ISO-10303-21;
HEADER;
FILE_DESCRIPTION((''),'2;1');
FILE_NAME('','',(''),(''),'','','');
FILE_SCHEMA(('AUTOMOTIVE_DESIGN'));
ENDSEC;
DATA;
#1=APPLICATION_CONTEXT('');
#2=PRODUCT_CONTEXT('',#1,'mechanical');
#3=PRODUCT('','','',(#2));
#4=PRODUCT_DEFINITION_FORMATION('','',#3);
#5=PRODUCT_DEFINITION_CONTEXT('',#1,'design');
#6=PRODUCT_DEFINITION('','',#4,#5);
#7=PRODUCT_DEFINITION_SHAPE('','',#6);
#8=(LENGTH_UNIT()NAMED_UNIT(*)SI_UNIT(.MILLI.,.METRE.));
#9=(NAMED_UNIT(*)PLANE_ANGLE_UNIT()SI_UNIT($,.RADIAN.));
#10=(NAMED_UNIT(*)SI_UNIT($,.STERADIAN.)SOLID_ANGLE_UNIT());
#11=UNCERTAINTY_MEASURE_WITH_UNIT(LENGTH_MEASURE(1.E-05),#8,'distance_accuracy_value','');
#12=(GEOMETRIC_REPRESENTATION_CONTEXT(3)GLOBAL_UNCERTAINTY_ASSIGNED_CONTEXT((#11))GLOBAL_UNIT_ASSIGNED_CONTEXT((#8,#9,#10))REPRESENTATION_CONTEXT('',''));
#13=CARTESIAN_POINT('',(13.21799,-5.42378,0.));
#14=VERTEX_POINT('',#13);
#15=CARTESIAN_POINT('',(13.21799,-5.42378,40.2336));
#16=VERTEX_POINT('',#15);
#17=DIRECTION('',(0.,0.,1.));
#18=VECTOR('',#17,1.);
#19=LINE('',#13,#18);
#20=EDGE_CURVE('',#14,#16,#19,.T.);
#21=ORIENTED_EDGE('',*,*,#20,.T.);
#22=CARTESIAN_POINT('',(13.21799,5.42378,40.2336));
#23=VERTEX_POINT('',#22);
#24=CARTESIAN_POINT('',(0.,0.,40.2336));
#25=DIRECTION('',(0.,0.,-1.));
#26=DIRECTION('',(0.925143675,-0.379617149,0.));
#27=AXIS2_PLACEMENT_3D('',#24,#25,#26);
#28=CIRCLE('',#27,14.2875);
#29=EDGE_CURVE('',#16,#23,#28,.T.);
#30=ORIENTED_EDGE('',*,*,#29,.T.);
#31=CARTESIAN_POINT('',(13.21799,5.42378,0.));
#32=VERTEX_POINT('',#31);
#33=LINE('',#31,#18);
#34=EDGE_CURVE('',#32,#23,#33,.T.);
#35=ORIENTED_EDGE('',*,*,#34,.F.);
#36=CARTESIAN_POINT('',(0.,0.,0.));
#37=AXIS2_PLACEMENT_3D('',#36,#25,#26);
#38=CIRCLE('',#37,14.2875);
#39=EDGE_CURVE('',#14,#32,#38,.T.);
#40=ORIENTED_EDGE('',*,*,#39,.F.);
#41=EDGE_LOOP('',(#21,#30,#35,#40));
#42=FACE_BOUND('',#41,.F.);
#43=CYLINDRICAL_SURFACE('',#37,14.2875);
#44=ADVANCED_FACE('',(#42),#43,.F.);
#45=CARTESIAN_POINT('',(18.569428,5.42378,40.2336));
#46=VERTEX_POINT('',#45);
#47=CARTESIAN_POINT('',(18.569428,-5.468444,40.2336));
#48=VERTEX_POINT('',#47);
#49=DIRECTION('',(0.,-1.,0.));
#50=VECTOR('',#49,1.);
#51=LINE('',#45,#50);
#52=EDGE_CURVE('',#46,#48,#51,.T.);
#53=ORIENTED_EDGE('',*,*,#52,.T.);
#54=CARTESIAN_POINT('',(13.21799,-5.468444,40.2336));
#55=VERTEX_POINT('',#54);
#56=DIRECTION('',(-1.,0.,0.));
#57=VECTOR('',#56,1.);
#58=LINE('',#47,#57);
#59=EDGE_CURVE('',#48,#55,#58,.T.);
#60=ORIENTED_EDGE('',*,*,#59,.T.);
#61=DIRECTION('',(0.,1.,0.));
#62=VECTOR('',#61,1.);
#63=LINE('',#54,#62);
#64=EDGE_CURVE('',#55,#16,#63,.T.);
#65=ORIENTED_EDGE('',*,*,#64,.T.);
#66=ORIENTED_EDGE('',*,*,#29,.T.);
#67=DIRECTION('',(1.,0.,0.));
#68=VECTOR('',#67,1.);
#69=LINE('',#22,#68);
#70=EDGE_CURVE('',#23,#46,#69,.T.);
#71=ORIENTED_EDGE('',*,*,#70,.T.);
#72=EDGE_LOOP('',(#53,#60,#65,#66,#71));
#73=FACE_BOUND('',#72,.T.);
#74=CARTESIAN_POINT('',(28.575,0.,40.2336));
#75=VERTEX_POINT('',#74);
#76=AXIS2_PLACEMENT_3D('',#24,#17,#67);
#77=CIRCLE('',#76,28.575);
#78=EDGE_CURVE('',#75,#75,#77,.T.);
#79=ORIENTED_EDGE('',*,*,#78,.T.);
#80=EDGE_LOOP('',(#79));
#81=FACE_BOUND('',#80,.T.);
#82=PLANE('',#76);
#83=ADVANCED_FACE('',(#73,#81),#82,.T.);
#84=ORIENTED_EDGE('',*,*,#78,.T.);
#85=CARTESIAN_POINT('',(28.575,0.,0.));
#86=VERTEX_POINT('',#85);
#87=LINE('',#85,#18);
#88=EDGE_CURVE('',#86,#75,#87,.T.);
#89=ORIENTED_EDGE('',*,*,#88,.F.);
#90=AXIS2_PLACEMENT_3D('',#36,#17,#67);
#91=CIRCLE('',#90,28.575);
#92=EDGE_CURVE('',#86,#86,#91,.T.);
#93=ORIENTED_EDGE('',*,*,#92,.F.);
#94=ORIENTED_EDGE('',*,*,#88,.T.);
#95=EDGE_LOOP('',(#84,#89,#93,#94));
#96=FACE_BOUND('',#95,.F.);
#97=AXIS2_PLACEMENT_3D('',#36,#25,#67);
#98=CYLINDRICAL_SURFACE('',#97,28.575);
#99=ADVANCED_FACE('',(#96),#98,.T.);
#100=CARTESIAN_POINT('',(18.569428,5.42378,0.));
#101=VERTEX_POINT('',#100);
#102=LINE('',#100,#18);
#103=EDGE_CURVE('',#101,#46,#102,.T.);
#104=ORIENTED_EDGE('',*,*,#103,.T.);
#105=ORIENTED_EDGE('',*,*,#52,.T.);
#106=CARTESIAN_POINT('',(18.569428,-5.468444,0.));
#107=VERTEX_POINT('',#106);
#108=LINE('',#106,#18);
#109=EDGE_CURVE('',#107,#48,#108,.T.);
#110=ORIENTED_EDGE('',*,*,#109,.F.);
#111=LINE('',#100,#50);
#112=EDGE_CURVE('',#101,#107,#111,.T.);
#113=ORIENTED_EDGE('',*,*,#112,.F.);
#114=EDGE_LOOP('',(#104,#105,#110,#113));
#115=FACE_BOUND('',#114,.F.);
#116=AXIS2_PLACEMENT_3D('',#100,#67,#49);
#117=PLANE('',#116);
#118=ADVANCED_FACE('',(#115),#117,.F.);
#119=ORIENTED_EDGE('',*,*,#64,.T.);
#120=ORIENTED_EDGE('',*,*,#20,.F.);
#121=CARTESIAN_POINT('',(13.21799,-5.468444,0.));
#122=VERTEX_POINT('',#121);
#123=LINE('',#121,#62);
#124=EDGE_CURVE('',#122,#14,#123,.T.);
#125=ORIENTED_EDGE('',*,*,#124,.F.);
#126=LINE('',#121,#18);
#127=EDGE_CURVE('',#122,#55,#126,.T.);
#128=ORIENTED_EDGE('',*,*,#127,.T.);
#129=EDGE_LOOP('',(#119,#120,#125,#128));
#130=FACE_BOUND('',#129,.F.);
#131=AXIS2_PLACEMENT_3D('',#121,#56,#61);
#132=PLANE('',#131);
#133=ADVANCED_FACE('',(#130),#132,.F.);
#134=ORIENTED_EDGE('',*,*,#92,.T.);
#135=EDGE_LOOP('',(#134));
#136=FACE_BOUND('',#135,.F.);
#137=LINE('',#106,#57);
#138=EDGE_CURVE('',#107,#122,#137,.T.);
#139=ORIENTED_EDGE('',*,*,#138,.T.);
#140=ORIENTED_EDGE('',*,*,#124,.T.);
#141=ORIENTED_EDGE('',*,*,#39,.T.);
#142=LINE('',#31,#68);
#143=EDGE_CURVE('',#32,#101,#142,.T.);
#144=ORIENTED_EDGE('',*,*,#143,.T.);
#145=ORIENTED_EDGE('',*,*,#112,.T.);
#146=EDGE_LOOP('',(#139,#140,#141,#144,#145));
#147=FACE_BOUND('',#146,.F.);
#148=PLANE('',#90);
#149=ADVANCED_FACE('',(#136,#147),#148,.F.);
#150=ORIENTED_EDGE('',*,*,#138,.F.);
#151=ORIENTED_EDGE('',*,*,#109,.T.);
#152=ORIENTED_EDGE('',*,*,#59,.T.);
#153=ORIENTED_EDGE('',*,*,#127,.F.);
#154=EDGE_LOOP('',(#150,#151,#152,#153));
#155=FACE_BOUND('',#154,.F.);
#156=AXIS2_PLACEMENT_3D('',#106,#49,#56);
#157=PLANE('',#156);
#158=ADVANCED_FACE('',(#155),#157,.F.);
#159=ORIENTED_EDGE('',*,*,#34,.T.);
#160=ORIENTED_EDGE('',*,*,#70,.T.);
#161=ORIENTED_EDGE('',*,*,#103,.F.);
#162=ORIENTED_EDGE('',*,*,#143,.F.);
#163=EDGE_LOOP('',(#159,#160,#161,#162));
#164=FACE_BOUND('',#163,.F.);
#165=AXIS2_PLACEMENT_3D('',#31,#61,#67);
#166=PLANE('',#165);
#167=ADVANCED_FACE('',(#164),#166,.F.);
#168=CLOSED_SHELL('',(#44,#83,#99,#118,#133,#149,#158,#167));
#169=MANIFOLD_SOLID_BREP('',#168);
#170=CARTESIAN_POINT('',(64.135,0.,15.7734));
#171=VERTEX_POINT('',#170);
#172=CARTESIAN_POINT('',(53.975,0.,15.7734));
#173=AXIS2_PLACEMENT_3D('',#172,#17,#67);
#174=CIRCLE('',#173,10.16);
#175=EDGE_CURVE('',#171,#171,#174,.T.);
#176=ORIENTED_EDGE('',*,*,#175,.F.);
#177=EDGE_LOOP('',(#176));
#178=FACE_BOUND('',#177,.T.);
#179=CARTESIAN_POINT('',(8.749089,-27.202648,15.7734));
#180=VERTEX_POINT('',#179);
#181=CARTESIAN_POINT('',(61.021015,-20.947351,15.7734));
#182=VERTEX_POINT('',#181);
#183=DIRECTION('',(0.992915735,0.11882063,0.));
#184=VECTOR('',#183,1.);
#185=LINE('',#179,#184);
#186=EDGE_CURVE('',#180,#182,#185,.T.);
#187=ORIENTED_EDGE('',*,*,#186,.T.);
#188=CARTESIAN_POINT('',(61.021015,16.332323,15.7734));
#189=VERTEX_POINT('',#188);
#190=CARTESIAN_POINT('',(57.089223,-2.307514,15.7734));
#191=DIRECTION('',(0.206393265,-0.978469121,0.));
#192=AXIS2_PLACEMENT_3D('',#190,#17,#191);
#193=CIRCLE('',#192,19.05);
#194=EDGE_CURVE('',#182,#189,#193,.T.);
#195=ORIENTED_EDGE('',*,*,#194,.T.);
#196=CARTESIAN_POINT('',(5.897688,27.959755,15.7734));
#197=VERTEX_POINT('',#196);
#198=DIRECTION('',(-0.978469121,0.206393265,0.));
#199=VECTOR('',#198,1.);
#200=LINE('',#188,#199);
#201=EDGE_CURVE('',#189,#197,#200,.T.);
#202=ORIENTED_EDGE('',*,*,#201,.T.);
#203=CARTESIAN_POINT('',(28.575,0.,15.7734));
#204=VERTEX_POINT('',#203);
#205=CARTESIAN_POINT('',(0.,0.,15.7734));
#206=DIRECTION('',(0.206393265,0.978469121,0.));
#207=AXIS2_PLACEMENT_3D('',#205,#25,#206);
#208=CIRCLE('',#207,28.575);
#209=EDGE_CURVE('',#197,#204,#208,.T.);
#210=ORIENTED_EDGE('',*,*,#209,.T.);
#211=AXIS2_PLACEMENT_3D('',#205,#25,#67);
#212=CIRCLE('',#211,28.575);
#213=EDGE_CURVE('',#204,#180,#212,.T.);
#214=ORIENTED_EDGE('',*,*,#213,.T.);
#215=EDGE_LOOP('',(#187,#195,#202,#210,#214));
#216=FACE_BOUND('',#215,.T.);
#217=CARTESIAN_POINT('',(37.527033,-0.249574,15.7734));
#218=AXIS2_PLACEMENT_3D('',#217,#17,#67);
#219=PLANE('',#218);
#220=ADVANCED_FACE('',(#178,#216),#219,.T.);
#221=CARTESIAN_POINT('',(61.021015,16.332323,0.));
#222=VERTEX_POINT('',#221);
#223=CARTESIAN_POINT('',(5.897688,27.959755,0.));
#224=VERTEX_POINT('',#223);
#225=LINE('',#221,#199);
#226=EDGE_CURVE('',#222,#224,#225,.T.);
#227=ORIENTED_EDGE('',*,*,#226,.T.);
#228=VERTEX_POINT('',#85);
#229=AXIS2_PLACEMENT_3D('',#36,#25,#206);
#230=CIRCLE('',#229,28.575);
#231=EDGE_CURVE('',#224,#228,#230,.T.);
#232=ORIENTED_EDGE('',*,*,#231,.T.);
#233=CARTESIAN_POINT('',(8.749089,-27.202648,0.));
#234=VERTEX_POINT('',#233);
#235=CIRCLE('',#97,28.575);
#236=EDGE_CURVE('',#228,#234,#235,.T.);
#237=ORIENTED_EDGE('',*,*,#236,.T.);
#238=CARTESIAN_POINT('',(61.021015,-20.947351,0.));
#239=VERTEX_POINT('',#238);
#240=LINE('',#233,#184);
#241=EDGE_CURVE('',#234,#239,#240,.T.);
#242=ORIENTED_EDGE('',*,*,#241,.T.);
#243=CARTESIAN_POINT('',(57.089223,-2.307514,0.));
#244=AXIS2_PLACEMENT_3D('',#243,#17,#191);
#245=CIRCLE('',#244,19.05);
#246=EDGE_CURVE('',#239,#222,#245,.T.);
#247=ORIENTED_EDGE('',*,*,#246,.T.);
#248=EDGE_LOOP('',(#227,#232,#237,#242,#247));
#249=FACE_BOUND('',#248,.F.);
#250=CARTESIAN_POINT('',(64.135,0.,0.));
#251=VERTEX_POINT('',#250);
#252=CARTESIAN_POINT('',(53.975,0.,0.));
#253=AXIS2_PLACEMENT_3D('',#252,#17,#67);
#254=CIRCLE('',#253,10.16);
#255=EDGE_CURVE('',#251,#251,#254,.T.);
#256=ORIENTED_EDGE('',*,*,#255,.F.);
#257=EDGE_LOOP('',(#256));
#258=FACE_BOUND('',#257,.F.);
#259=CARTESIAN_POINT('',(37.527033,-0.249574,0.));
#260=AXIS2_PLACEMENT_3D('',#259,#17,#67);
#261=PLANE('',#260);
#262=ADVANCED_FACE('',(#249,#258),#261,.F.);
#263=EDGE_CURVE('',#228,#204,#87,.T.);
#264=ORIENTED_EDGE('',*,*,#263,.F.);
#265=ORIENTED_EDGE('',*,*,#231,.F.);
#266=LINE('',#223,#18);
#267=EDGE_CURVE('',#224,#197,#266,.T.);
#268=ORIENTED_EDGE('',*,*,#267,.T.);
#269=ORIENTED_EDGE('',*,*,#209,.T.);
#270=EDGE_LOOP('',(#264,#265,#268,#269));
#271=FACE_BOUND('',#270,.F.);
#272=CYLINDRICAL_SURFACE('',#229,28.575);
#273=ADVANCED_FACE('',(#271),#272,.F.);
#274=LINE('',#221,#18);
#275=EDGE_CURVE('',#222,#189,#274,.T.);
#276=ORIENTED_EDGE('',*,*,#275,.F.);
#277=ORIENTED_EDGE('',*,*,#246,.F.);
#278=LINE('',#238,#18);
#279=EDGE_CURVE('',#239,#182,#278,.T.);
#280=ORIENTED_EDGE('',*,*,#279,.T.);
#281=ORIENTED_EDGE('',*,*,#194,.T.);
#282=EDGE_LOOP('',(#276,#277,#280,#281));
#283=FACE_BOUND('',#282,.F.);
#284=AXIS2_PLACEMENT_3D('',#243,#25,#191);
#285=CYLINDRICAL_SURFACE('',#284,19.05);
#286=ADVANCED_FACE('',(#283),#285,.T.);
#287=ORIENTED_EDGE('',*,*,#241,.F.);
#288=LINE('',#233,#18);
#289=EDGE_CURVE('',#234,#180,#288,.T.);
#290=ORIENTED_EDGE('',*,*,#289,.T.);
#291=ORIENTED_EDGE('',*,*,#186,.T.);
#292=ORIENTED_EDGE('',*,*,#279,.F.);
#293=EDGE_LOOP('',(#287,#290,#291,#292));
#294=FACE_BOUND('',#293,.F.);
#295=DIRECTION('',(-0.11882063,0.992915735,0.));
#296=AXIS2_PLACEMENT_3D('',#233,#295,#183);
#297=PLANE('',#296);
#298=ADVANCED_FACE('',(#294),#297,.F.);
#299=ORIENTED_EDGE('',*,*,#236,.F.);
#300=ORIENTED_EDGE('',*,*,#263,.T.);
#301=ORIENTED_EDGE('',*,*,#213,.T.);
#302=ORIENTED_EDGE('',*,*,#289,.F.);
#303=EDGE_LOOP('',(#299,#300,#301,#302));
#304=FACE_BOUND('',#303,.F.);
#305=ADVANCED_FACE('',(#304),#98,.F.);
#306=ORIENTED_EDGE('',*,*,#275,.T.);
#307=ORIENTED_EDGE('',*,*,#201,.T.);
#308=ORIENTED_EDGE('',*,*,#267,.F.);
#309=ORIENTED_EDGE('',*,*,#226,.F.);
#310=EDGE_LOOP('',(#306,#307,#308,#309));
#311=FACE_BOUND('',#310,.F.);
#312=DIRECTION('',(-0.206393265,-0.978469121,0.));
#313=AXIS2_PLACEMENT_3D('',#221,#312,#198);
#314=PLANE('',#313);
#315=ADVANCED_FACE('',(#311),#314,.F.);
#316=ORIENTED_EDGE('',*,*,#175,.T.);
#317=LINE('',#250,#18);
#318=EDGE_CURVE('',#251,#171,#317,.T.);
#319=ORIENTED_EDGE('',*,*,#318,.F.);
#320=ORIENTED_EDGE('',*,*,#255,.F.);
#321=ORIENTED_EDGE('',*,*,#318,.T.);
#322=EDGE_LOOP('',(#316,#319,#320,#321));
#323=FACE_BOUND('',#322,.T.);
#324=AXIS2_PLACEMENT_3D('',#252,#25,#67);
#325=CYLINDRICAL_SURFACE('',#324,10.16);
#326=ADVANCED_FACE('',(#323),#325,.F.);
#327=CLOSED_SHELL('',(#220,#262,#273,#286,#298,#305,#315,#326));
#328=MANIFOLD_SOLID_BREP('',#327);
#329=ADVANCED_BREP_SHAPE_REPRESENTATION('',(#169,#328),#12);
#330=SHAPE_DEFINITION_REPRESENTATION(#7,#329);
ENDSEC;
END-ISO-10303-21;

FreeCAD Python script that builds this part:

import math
import FreeCAD as App
import Part
import Sketcher

V = App.Vector
Q = App.Units.Quantity

doc = App.newDocument("Part")
body = doc.addObject("PartDesign::Body", "Body")

# Sketch on XY plane
sketch1 = doc.addObject("Sketcher::SketchObject", "Sketch")
body.addObject(sketch1)
sketch1.AttachmentSupport = (doc.XY_Plane, [""])
sketch1.MapMode = "FlatFace"
sketch1.addGeometry(Part.ArcOfCircle(Part.Circle(V(0, 0, 0), V(0, 0, 1), 29), math.radians(0), math.radians(78)), False)
sketch1.addGeometry(Part.ArcOfCircle(Part.Circle(V(0, 0, 0), V(0, 0, 1), 29), math.radians(-72), math.radians(0)), False)
sketch1.addGeometry(Part.LineSegment(V(9, -27, 0), V(61, -21, 0)), False)
sketch1.addGeometry(Part.ArcOfCircle(Part.Circle(V(57, -2, 0), V(0, 0, 1), 19), math.radians(-78), math.radians(78)), False)
sketch1.addGeometry(Part.LineSegment(V(61, 16, 0), V(6, 28, 0)), False)
sketch1.addGeometry(Part.Circle(V(54, 0, 0), V(0, 0, 1), 10), False)
sketch1.addConstraint(Sketcher.Constraint("Tangent", 0, 1, 1, 2))
sketch1.addConstraint(Sketcher.Constraint("Coincident", 1, 1, 2, 1))
sketch1.addConstraint(Sketcher.Constraint("Coincident", 2, 2, 3, 1))
sketch1.addConstraint(Sketcher.Constraint("Tangent", 3, 2, 4, 1))
sketch1.addConstraint(Sketcher.Constraint("Tangent", 4, 2, 0, 2))
sketch1.addConstraint(Sketcher.Constraint("Coincident", 0, 3, -1, 1))
sketch1.addConstraint(Sketcher.Constraint("Equal", 0, 1))
sketch1.addConstraint(Sketcher.Constraint("PointOnObject", 5, 3, -1))
sketch1.addConstraint(Sketcher.Constraint("PointOnObject", 0, 1, -1))
sketch1.addConstraint(Sketcher.Constraint("Vertical", 2, 2, 3, 2))
sketch1.addConstraint(Sketcher.Constraint("Diameter", 5, Q("0.8 in")))
sketch1.addConstraint(Sketcher.Constraint("Radius", 3, Q("0.75 in")))
sketch1.addConstraint(Sketcher.Constraint("Radius", 0, Q("1.125 in")))
sketch1.addConstraint(Sketcher.Constraint("DistanceX", 0, 1, 5, 3, Q("1 in")))
sketch1.addConstraint(Sketcher.Constraint("DistanceX", 4, 2, 1, 1, 2.851401))
sketch1.addConstraint(Sketcher.Constraint("DistanceX", -1, 1, 1, 1, 8.749089))
sketch1.addConstraint(Sketcher.Constraint("DistanceY", 2, 2, -1, 1, 20.947351))
pad1 = doc.addObject("PartDesign::Pad", "Pad")
body.addObject(pad1)
pad1.Profile = sketch1
pad1.Length = Q("0.621 in")
body2 = doc.addObject("PartDesign::Body", "Body001")

# Sketch on XY plane
sketch2 = doc.addObject("Sketcher::SketchObject", "Sketch001")
body2.addObject(sketch2)
sketch2.AttachmentSupport = (doc.getObject("XY_Plane001"), [""])
sketch2.MapMode = "FlatFace"
sketch2.addGeometry(Part.Circle(V(0, 0, 0), V(0, 0, 1), 28.575), False)
sketch2.addGeometry(Part.LineSegment(V(13.218, -5.468, 0), V(13.218, -5.424, 0)), False)
sketch2.addGeometry(Part.ArcOfCircle(Part.Circle(V(0, 0, 0), V(0, 0, 1), 14.287), math.radians(22), math.radians(338)), False)
sketch2.addGeometry(Part.LineSegment(V(13.218, 5.424, 0), V(18.569, 5.424, 0)), False)
sketch2.addGeometry(Part.LineSegment(V(18.569, 5.424, 0), V(18.569, -5.468, 0)), False)
sketch2.addGeometry(Part.LineSegment(V(18.569, -5.468, 0), V(13.218, -5.468, 0)), False)
sketch2.addConstraint(Sketcher.Constraint("Coincident", 1, 2, 2, 2))
sketch2.addConstraint(Sketcher.Constraint("Coincident", 2, 1, 3, 1))
sketch2.addConstraint(Sketcher.Constraint("Coincident", 3, 2, 4, 1))
sketch2.addConstraint(Sketcher.Constraint("Coincident", 4, 2, 5, 1))
sketch2.addConstraint(Sketcher.Constraint("Coincident", 5, 2, 1, 1))
sketch2.addConstraint(Sketcher.Constraint("Vertical", 1))
sketch2.addConstraint(Sketcher.Constraint("Horizontal", 3))
sketch2.addConstraint(Sketcher.Constraint("Vertical", 4))
sketch2.addConstraint(Sketcher.Constraint("Horizontal", 5))
sketch2.addConstraint(Sketcher.Constraint("Coincident", 0, 3, -1, 1))
sketch2.addConstraint(Sketcher.Constraint("Coincident", 2, 3, -1, 1))
sketch2.addConstraint(Sketcher.Constraint("Vertical", 1, 2, 2, 1))
sketch2.addConstraint(Sketcher.Constraint("Diameter", 0, Q("2.25 in")))
sketch2.addConstraint(Sketcher.Constraint("Radius", 2, Q("0.5625 in")))
sketch2.addConstraint(Sketcher.Constraint("DistanceX", 3, 1, 3, 2, 5.351438))
sketch2.addConstraint(Sketcher.Constraint("DistanceY", 1, 1, 1, 2, 0.044664))
sketch2.addConstraint(Sketcher.Constraint("DistanceY", 4, 2, 4, 1, 10.892224))
pad2 = doc.addObject("PartDesign::Pad", "Pad001")
body2.addObject(pad2)
pad2.Profile = sketch2
pad2.Length = Q("1.584 in")

doc.recompute()
